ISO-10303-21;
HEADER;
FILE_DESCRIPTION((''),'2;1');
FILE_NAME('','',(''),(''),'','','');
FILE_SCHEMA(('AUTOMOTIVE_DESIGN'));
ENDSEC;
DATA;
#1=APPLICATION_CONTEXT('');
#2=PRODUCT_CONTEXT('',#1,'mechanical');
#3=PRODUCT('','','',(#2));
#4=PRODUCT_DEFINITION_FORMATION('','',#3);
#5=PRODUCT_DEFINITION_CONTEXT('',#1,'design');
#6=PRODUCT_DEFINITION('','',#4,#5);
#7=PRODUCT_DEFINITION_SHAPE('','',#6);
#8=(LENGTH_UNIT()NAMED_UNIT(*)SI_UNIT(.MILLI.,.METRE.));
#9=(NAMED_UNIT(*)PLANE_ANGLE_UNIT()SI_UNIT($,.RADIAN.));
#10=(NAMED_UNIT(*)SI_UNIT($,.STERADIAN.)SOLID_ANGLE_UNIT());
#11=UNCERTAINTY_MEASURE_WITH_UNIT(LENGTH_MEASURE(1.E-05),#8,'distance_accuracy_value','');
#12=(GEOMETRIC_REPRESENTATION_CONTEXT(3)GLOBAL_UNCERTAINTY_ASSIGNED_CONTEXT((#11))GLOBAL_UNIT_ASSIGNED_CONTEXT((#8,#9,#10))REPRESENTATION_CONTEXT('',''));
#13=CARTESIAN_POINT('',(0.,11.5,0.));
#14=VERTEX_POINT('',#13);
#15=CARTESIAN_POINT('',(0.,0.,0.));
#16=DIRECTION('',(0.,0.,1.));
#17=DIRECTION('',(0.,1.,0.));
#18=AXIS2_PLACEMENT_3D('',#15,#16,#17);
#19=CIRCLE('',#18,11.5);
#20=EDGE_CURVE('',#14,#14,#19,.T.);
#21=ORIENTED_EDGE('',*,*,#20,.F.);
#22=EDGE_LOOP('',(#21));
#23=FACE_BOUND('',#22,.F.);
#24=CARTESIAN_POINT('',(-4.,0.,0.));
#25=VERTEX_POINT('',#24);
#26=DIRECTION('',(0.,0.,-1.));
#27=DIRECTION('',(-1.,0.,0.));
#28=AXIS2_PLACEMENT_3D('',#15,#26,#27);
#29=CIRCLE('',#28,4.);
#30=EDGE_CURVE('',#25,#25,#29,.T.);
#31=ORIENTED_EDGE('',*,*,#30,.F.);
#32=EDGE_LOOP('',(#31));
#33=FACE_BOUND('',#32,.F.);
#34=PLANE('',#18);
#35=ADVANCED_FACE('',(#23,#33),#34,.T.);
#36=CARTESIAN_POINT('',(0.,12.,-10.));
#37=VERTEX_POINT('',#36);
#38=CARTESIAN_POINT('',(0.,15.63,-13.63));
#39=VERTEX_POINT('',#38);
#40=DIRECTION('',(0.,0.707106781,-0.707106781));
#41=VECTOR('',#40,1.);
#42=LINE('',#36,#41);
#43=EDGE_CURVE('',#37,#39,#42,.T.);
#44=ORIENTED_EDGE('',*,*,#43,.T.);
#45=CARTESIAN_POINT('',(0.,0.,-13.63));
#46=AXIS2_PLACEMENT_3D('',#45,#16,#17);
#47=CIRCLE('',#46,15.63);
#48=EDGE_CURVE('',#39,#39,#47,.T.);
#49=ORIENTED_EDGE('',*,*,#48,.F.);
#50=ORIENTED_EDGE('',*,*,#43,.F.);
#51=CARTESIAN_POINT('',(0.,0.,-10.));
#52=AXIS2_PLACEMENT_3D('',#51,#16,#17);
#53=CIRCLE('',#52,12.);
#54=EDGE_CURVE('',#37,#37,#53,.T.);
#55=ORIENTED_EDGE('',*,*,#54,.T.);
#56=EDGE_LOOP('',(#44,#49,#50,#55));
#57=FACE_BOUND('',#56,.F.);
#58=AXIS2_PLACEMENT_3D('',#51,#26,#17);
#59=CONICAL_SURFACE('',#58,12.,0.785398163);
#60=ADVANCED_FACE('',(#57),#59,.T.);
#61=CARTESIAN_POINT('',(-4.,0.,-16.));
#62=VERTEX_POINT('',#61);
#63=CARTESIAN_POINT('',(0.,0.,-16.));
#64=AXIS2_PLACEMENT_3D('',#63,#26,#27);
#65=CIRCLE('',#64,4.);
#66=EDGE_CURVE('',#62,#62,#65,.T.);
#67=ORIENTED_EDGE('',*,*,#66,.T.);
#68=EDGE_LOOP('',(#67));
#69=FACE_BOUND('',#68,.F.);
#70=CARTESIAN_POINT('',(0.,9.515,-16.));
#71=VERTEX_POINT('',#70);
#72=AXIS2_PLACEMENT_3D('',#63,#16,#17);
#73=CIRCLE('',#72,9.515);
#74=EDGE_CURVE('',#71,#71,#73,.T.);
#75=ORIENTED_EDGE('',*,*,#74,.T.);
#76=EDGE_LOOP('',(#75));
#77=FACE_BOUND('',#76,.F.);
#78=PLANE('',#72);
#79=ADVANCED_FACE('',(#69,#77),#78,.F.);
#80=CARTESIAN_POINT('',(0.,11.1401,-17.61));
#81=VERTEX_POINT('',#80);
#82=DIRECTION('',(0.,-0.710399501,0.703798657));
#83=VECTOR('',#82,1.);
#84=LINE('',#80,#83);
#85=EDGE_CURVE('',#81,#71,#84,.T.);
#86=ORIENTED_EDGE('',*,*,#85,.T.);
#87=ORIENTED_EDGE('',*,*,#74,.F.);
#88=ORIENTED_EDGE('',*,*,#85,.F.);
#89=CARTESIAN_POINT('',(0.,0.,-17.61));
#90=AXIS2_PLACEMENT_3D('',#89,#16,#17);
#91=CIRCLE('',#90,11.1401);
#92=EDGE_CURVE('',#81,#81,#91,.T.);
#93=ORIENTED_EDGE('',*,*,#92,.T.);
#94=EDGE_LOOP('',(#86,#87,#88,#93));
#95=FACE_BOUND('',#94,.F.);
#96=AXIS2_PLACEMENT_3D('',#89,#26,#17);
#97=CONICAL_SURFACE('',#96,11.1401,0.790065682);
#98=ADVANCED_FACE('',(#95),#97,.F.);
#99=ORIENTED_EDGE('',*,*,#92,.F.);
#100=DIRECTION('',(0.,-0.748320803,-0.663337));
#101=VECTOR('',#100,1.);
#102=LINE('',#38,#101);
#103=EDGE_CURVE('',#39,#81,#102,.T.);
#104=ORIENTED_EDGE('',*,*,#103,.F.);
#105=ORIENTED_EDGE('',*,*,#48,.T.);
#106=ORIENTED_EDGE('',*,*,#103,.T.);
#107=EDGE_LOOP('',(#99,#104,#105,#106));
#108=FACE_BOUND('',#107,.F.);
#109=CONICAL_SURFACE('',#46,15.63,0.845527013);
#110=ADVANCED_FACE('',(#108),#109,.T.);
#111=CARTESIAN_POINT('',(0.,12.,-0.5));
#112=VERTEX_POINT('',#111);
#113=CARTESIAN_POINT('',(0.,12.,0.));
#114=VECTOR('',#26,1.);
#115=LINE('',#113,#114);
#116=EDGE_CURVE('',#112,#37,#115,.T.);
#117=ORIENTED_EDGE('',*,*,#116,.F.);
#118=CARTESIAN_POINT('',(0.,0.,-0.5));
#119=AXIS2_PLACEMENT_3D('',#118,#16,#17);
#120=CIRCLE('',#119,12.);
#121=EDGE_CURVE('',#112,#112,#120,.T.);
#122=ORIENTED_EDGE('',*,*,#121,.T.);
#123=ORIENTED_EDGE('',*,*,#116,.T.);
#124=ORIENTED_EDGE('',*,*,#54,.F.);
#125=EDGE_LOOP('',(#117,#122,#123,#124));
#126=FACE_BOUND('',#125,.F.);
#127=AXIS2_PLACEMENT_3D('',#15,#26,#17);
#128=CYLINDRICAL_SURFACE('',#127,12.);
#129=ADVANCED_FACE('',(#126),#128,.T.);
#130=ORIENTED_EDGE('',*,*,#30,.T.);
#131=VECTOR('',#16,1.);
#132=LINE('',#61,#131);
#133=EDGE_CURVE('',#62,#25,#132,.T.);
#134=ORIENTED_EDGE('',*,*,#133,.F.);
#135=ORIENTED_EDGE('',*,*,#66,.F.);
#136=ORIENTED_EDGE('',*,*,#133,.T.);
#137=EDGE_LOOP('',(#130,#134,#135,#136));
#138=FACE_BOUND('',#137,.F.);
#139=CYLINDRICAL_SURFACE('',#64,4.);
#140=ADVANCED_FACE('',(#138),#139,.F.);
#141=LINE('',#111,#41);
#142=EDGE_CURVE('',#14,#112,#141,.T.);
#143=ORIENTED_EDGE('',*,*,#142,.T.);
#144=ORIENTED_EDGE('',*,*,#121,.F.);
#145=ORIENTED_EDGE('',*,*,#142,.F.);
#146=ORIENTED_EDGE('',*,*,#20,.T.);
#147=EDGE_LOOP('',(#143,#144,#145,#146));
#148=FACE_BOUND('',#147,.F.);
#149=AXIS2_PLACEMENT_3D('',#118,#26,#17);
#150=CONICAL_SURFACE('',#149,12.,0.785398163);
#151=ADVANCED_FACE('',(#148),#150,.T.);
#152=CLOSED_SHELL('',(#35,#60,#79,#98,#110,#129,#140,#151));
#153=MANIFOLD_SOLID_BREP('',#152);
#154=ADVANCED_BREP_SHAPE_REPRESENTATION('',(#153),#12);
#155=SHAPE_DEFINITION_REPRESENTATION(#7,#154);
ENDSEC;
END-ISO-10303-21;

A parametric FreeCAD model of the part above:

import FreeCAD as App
import Part
import Sketcher
from FreeCAD import Vector
Q = App.Units.Quantity


def edges_at(feature, points):
    """Names of the edges that pass closest to the given points."""
    edges = feature.Shape.Edges
    near = lambda p: min(range(len(edges)), key=lambda i: edges[i].distToShape(Part.Vertex(*p))[0])
    return sorted({f"Edge{near(p) + 1}" for p in points})

doc = App.newDocument("Part")
body = doc.addObject("PartDesign::Body", "Body")

# Sketch on YZ plane
sketch1 = body.newObject("Sketcher::SketchObject", "Sketch")
sketch1.AttachmentSupport = (doc.getObject("YZ_Plane"), [""])
sketch1.MapMode = "FlatFace"
sketch1.addGeometry([
    Part.LineSegment(Vector(12, 0, 0), Vector(0, 0, 0)),  # 0
    Part.LineSegment(Vector(0, 0, 0), Vector(0, -16, 0)),  # 1
    Part.LineSegment(Vector(0, -16, 0), Vector(9.5, -16, 0)),  # 2
    Part.LineSegment(Vector(9.5, -16, 0), Vector(11.1, -17.6, 0)),  # 3
    Part.LineSegment(Vector(11.1, -17.6, 0), Vector(15.6, -13.6, 0)),  # 4
    Part.LineSegment(Vector(15.6, -13.6, 0), Vector(12, -10, 0)),  # 5
    Part.LineSegment(Vector(12, -10, 0), Vector(12, 0, 0)),  # 6
], False)
sketch1.addConstraint([
    Sketcher.Constraint("Coincident", 0, 2, 1, 1),
    Sketcher.Constraint("Coincident", 1, 2, 2, 1),
    Sketcher.Constraint("Coincident", 2, 2, 3, 1),
    Sketcher.Constraint("Coincident", 3, 2, 4, 1),
    Sketcher.Constraint("Coincident", 4, 2, 5, 1),
    Sketcher.Constraint("Coincident", 5, 2, 6, 1),
    Sketcher.Constraint("Coincident", 6, 2, 0, 1),
    Sketcher.Constraint("Horizontal", 0),
    Sketcher.Constraint("Vertical", 1),
    Sketcher.Constraint("Horizontal", 2),
    Sketcher.Constraint("Vertical", 6),
    Sketcher.Constraint("Coincident", 0, 2, -1, 1),
    Sketcher.Constraint("DistanceX", 0, 2, 0, 1, Q("12 mm")),
    Sketcher.Constraint("DistanceY", 1, 2, 1, 1, Q("16 mm")),
    Sketcher.Constraint("DistanceY", 6, 1, 6, 2, Q("10 mm")),
    Sketcher.Constraint("Distance", 4, Q("6 mm")),
    Sketcher.Constraint("DistanceX", 2, 1, 2, 2, Q("9.515 mm")),
    Sketcher.Constraint("DistanceY", 3, 2, -1, 1, Q("17.61 mm")),
    Sketcher.Constraint("DistanceX", -1, 1, 4, 2, Q("15.63 mm")),
    Sketcher.Constraint("DistanceY", 4, 2, -1, 1, Q("13.63 mm")),
])
revolution = body.newObject("PartDesign::Revolution", "Revolution")
revolution.Profile = sketch1
revolution.ReferenceAxis = (sketch1, ["V_Axis"])
revolution.Angle = 360
doc.recompute()

chamfer = body.newObject("PartDesign::Chamfer", "Chamfer")
chamfer.Base = (revolution, edges_at(revolution, [(0, -12, 0)]))
chamfer.Size = 0.5

# Sketch on XY plane
sketch2 = body.newObject("Sketcher::SketchObject", "Sketch001")
sketch2.AttachmentSupport = (doc.getObject("XY_Plane"), [""])
sketch2.MapMode = "FlatFace"
sketch2.AttachmentOffset = App.Placement(Vector(0, 0, -16), App.Rotation())
sketch2.addGeometry(Part.Circle(Vector(0, 0, 0), Vector(0, 0, 1), 4), False)
sketch2.addConstraint([
    Sketcher.Constraint("Coincident", 0, 3, -1, 1),
    Sketcher.Constraint("Diameter", 0, Q("8 mm")),
])
pocket1 = body.newObject("PartDesign::Pocket", "Pocket")
pocket1.Profile = sketch2
pocket1.Type = "UpToFirst"
pocket1.Reversed = True

doc.recompute()
